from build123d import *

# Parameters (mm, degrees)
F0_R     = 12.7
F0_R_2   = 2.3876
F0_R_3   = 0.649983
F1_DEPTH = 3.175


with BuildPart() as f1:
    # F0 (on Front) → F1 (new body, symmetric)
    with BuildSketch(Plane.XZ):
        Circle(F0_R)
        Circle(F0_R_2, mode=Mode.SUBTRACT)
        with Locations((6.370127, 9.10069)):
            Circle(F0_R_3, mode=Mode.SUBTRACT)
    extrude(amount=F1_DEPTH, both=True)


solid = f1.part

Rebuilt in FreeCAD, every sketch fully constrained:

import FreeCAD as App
import Part
import Sketcher

V = App.Vector
Q = App.Units.Quantity

doc = App.newDocument("Part")
body = doc.addObject("PartDesign::Body", "Body")

# Sketch on XZ plane
sketch1 = body.newObject("Sketcher::SketchObject", "Sketch")
sketch1.AttachmentSupport = (doc.getObject("XZ_Plane"), [""])
sketch1.MapMode = "FlatFace"
sketch1.addGeometry(Part.Circle(V(0, 0, 0), V(0, 0, 1), 12.7), False)
sketch1.addGeometry(Part.Circle(V(0, 0, 0), V(0, 0, 1), 2.4), False)
sketch1.addGeometry(Part.Circle(V(6.4, 9.1, 0), V(0, 0, 1), 0.6), False)
sketch1.addConstraint(Sketcher.Constraint("Coincident", 0, 3, -1, 1))
sketch1.addConstraint(Sketcher.Constraint("Coincident", 1, 3, -1, 1))
sketch1.addConstraint(Sketcher.Constraint("Diameter", 0, Q("1 in")))
sketch1.addConstraint(Sketcher.Constraint("Diameter", 1, Q("0.188 in")))
sketch1.addConstraint(Sketcher.Constraint("Diameter", 2, 1.299966))
sketch1.addConstraint(Sketcher.Constraint("DistanceY", -1, 1, 2, 3, 9.10069))
sketch1.addConstraint(Sketcher.Constraint("DistanceX", -1, 1, 2, 3, 6.370127))
pad1 = body.newObject("PartDesign::Pad", "Pad")
pad1.Profile = sketch1
pad1.Length = Q("0.25 in")
pad1.Midplane = True

doc.recompute()
